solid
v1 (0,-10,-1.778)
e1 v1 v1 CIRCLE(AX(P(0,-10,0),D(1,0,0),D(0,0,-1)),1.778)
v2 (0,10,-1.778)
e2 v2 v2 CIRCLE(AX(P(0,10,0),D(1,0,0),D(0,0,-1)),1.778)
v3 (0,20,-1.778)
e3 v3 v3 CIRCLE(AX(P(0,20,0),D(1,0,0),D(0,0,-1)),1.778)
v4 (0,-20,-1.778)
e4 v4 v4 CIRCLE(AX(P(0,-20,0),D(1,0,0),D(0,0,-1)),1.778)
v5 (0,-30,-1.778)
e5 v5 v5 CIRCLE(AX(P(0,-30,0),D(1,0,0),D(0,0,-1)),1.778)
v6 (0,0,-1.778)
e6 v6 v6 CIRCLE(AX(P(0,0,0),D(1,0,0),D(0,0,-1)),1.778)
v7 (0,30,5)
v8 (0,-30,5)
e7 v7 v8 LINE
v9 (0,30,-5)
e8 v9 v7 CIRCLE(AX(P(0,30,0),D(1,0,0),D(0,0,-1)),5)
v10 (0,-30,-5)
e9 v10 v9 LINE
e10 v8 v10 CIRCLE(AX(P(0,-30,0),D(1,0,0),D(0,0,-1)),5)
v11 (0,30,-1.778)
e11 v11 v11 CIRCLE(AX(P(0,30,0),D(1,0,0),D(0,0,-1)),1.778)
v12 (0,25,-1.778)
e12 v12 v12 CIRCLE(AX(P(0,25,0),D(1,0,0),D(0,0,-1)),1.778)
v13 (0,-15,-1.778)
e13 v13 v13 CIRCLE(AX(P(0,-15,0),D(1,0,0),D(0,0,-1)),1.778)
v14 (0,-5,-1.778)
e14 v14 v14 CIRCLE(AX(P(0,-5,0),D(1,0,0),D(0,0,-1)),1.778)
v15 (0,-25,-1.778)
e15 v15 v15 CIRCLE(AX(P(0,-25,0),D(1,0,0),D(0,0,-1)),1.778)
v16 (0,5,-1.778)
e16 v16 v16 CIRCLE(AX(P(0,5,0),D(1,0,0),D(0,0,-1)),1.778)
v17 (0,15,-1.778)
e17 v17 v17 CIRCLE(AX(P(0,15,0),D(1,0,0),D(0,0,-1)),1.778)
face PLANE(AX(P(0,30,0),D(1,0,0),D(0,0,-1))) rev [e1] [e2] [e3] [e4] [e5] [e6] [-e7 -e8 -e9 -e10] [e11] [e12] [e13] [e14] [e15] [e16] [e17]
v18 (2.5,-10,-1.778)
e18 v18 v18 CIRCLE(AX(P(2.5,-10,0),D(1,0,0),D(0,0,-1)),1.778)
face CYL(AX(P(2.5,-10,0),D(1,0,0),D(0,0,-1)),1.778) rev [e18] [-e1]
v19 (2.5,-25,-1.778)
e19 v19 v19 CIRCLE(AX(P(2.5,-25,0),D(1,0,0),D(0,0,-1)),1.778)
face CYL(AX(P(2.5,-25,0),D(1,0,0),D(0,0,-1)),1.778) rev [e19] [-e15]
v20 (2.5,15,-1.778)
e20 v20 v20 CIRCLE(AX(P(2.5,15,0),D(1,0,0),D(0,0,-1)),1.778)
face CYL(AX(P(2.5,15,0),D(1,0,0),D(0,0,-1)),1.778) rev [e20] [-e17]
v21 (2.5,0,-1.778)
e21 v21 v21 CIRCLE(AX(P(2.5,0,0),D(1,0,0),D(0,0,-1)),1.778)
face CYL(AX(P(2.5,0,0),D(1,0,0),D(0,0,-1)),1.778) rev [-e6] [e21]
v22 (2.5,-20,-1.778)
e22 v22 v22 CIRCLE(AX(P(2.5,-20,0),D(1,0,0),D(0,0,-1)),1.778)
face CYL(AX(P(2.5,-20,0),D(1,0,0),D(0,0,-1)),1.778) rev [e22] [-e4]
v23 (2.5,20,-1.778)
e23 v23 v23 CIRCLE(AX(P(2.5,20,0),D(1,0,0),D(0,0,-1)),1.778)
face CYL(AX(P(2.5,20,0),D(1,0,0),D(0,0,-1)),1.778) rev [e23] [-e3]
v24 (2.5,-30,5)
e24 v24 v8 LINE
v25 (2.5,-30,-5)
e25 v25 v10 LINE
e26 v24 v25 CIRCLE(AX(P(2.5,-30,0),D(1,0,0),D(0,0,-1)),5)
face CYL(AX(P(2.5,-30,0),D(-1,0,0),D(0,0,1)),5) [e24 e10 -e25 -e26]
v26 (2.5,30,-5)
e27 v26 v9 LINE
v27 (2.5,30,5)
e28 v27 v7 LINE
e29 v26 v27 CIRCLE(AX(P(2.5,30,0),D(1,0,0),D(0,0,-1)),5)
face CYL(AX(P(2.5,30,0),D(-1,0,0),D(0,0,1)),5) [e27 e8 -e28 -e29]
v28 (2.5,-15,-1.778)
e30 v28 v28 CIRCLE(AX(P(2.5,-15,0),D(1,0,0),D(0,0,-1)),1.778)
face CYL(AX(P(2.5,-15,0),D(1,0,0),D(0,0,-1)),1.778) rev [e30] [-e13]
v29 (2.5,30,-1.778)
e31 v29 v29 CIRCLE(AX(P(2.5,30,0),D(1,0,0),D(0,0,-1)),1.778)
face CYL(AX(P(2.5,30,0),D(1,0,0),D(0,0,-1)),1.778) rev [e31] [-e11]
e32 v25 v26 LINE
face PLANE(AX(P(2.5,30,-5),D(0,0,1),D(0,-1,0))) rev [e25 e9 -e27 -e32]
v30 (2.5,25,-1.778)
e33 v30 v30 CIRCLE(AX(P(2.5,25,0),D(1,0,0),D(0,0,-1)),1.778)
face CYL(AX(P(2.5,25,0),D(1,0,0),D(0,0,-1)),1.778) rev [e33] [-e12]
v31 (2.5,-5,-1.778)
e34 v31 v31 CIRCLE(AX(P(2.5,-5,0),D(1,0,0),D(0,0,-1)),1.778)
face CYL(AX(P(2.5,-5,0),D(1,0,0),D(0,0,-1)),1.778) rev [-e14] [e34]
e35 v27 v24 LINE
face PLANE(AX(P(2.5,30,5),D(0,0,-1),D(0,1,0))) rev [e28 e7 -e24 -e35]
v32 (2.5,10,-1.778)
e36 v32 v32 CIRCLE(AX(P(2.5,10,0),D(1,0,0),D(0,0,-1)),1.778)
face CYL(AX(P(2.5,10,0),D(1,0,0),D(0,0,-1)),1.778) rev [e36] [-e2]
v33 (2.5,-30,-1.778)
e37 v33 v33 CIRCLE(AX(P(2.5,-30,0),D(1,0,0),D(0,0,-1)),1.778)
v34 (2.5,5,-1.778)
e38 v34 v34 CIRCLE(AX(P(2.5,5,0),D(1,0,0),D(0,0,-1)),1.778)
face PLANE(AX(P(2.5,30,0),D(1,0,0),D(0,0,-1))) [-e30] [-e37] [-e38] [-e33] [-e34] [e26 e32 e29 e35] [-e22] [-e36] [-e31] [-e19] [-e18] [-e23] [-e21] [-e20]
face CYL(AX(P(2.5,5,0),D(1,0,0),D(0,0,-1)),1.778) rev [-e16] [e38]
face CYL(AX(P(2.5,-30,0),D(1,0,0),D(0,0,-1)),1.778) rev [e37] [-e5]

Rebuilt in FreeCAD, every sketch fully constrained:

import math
import FreeCAD as App
import Part
import Sketcher
from FreeCAD import Vector
Q = App.Units.Quantity

doc = App.newDocument("Part")
params = doc.addObject("Spreadsheet::Sheet", "Params")
for row, (alias, value) in enumerate([
    ("sketch1_radius", "5 mm"),
    ("sketch1_width", "60 mm"),
    ("pad1_length", "2.5 mm"),
    ("hole_diameter", "3.556 mm"),
    ("linearpattern_pitch", "5 mm"),
    ("hole2_diameter", "3.556 mm"),
    ("hole3_diameter", "3.556 mm"),
    ("hole4_diameter", "3.556 mm"),
    ("hole5_diameter", "3.556 mm"),
    ("hole6_diameter", "3.556 mm"),
    ("hole7_diameter", "3.556 mm"),
    ("hole8_diameter", "3.556 mm"),
], start=1):
    params.set(f"A{row}", alias)
    params.set(f"B{row}", "=" + value)
    params.setAlias(f"B{row}", alias)

body = doc.addObject("PartDesign::Body", "Body")

sketch1 = body.newObject("Sketcher::SketchObject", "Sketch")
sketch1.AttachmentSupport = (doc.getObject("YZ_Plane"), [""])
sketch1.MapMode = "FlatFace"
sketch1.addGeometry([
    Part.LineSegment(Vector(-30, -5, 0), Vector(30, -5, 0)),
    Part.ArcOfCircle(Part.Circle(Vector(30, 0, 0), Vector(0, 0, 1), 5), math.radians(-90), math.radians(90)),
    Part.LineSegment(Vector(30, 5, 0), Vector(-30, 5, 0)),
    Part.ArcOfCircle(Part.Circle(Vector(-30, 0, 0), Vector(0, 0, 1), 5), math.radians(90), math.radians(270)),
], False)
sketch1.addConstraint([
    Sketcher.Constraint("Tangent", 0, 2, 1, 1),
    Sketcher.Constraint("Tangent", 1, 2, 2, 1),
    Sketcher.Constraint("Tangent", 2, 2, 3, 1),
    Sketcher.Constraint("Tangent", 3, 2, 0, 1),
    Sketcher.Constraint("Horizontal", 0),
    Sketcher.Constraint("Horizontal", 2),
    Sketcher.Constraint("Symmetric", 1, 3, 3, 3, -1, 1),
    Sketcher.Constraint("Radius", 1, Q("5 mm")),
    Sketcher.Constraint("DistanceX", 0, 1, 0, 2, Q("60 mm")),
])
sketch1.setExpression("Constraints[7]", "Params.sketch1_radius")
sketch1.setExpression("Constraints[8]", "Params.sketch1_width")
pad1 = body.newObject("PartDesign::Pad", "Pad")
pad1.Profile = sketch1
pad1.setExpression("Length", "Params.pad1_length")

sketch2 = body.newObject("Sketcher::SketchObject", "Sketch001")
sketch2.AttachmentSupport = (doc.getObject("YZ_Plane"), [""])
sketch2.MapMode = "FlatFace"
sketch2.AttachmentOffset = App.Placement(Vector(0, 0, 2.5), App.Rotation())
sketch2.addGeometry(Part.Circle(Vector(0, 0, 0), Vector(0, 0, 1), 1.8), False)
sketch2.addConstraint([
    Sketcher.Constraint("Coincident", 0, 3, -1, 1),
    Sketcher.Constraint("Diameter", 0, Q("3.556 mm")),
])
doc.recompute()
hole = body.newObject("PartDesign::Hole", "Hole")
hole.Profile = sketch2
hole.ThreadType = "None"
hole.setExpression("Diameter", "Params.hole_diameter")
hole.DepthType = "ThroughAll"
doc.recompute()

linearpattern = body.newObject("PartDesign::LinearPattern", "LinearPattern")
linearpattern.Originals = [hole]
linearpattern.Direction = (doc.getObject("Y_Axis"), [""])
linearpattern.Mode = "offset"
linearpattern.setExpression("Offset", "Params.linearpattern_pitch")
linearpattern.Occurrences = 7
body.Tip = linearpattern

sketch3 = body.newObject("Sketcher::SketchObject", "Sketch002")
sketch3.AttachmentSupport = (doc.getObject("YZ_Plane"), [""])
sketch3.MapMode = "FlatFace"
sketch3.AttachmentOffset = App.Placement(Vector(0, 0, 2.5), App.Rotation())
sketch3.addGeometry(Part.Circle(Vector(-5, 0, 0), Vector(0, 0, 1), 1.8), False)
sketch3.addConstraint([
    Sketcher.Constraint("PointOnObject", 0, 3, -1),
    Sketcher.Constraint("Diameter", 0, Q("3.556 mm")),
    Sketcher.Constraint("DistanceX", 0, 3, -1, 1, Q("5 mm")),
])
doc.recompute()
hole2 = body.newObject("PartDesign::Hole", "Hole001")
hole2.Profile = sketch3
hole2.ThreadType = "None"
hole2.setExpression("Diameter", "Params.hole2_diameter")
hole2.DepthType = "ThroughAll"

sketch4 = body.newObject("Sketcher::SketchObject", "Sketch003")
sketch4.AttachmentSupport = (doc.getObject("YZ_Plane"), [""])
sketch4.MapMode = "FlatFace"
sketch4.AttachmentOffset = App.Placement(Vector(0, 0, 2.5), App.Rotation())
sketch4.addGeometry(Part.Circle(Vector(-10, 0, 0), Vector(0, 0, 1), 1.8), False)
sketch4.addConstraint([
    Sketcher.Constraint("PointOnObject", 0, 3, -1),
    Sketcher.Constraint("Diameter", 0, Q("3.556 mm")),
    Sketcher.Constraint("DistanceX", 0, 3, -1, 1, Q("10 mm")),
])
doc.recompute()
hole3 = body.newObject("PartDesign::Hole", "Hole002")
hole3.Profile = sketch4
hole3.ThreadType = "None"
hole3.setExpression("Diameter", "Params.hole3_diameter")
hole3.DepthType = "ThroughAll"

sketch5 = body.newObject("Sketcher::SketchObject", "Sketch004")
sketch5.AttachmentSupport = (doc.getObject("YZ_Plane"), [""])
sketch5.MapMode = "FlatFace"
sketch5.AttachmentOffset = App.Placement(Vector(0, 0, 2.5), App.Rotation())
sketch5.addGeometry(Part.Circle(Vector(-15, 0, 0), Vector(0, 0, 1), 1.8), False)
sketch5.addConstraint([
    Sketcher.Constraint("PointOnObject", 0, 3, -1),
    Sketcher.Constraint("Diameter", 0, Q("3.556 mm")),
    Sketcher.Constraint("DistanceX", 0, 3, -1, 1, Q("15 mm")),
])
doc.recompute()
hole4 = body.newObject("PartDesign::Hole", "Hole003")
hole4.Profile = sketch5
hole4.ThreadType = "None"
hole4.setExpression("Diameter", "Params.hole4_diameter")
hole4.DepthType = "ThroughAll"

sketch6 = body.newObject("Sketcher::SketchObject", "Sketch005")
sketch6.AttachmentSupport = (doc.getObject("YZ_Plane"), [""])
sketch6.MapMode = "FlatFace"
sketch6.AttachmentOffset = App.Placement(Vector(0, 0, 2.5), App.Rotation())
sketch6.addGeometry(Part.Circle(Vector(-20, 0, 0), Vector(0, 0, 1), 1.8), False)
sketch6.addConstraint([
    Sketcher.Constraint("PointOnObject", 0, 3, -1),
    Sketcher.Constraint("Diameter", 0, Q("3.556 mm")),
    Sketcher.Constraint("DistanceX", 0, 3, -1, 1, Q("20 mm")),
])
doc.recompute()
hole5 = body.newObject("PartDesign::Hole", "Hole004")
hole5.Profile = sketch6
hole5.ThreadType = "None"
hole5.setExpression("Diameter", "Params.hole5_diameter")
hole5.DepthType = "ThroughAll"

sketch7 = body.newObject("Sketcher::SketchObject", "Sketch006")
sketch7.AttachmentSupport = (doc.getObject("YZ_Plane"), [""])
sketch7.MapMode = "FlatFace"
sketch7.AttachmentOffset = App.Placement(Vector(0, 0, 2.5), App.Rotation())
sketch7.addGeometry(Part.Circle(Vector(-25, 0, 0), Vector(0, 0, 1), 1.8), False)
sketch7.addConstraint([
    Sketcher.Constraint("PointOnObject", 0, 3, -1),
    Sketcher.Constraint("Diameter", 0, Q("3.556 mm")),
    Sketcher.Constraint("DistanceX", 0, 3, -1, 1, Q("25 mm")),
])
doc.recompute()
hole6 = body.newObject("PartDesign::Hole", "Hole005")
hole6.Profile = sketch7
hole6.ThreadType = "None"
hole6.setExpression("Diameter", "Params.hole6_diameter")
hole6.DepthType = "ThroughAll"

sketch8 = body.newObject("Sketcher::SketchObject", "Sketch007")
sketch8.AttachmentSupport = (doc.getObject("YZ_Plane"), [""])
sketch8.MapMode = "FlatFace"
sketch8.AttachmentOffset = App.Placement(Vector(0, 0, 2.5), App.Rotation())
sketch8.addGeometry(Part.Circle(Vector(-30, 0, 0), Vector(0, 0, 1), 1.8), False)
sketch8.addConstraint([
    Sketcher.Constraint("PointOnObject", 0, 3, -1),
    Sketcher.Constraint("Diameter", 0, Q("3.556 mm")),
    Sketcher.Constraint("DistanceX", 0, 3, -1, 1, Q("30 mm")),
])
doc.recompute()
hole7 = body.newObject("PartDesign::Hole", "Hole006")
hole7.Profile = sketch8
hole7.ThreadType = "None"
hole7.setExpression("Diameter", "Params.hole7_diameter")
hole7.DepthType = "ThroughAll"

sketch9 = body.newObject("Sketcher::SketchObject", "Sketch008")
sketch9.AttachmentSupport = (doc.getObject("YZ_Plane"), [""])
sketch9.MapMode = "FlatFace"
sketch9.AttachmentOffset = App.Placement(Vector(0, 0, 2.5), App.Rotation())
sketch9.addGeometry(Part.Circle(Vector(0, 0, 0), Vector(0, 0, 1), 1.8), False)
sketch9.addConstraint([
    Sketcher.Constraint("Coincident", 0, 3, -1, 1),
    Sketcher.Constraint("Diameter", 0, Q("3.556 mm")),
])
doc.recompute()
hole8 = body.newObject("PartDesign::Hole", "Hole007")
hole8.Profile = sketch9
hole8.ThreadType = "None"
hole8.setExpression("Diameter", "Params.hole8_diameter")
hole8.DepthType = "ThroughAll"

doc.recompute()
